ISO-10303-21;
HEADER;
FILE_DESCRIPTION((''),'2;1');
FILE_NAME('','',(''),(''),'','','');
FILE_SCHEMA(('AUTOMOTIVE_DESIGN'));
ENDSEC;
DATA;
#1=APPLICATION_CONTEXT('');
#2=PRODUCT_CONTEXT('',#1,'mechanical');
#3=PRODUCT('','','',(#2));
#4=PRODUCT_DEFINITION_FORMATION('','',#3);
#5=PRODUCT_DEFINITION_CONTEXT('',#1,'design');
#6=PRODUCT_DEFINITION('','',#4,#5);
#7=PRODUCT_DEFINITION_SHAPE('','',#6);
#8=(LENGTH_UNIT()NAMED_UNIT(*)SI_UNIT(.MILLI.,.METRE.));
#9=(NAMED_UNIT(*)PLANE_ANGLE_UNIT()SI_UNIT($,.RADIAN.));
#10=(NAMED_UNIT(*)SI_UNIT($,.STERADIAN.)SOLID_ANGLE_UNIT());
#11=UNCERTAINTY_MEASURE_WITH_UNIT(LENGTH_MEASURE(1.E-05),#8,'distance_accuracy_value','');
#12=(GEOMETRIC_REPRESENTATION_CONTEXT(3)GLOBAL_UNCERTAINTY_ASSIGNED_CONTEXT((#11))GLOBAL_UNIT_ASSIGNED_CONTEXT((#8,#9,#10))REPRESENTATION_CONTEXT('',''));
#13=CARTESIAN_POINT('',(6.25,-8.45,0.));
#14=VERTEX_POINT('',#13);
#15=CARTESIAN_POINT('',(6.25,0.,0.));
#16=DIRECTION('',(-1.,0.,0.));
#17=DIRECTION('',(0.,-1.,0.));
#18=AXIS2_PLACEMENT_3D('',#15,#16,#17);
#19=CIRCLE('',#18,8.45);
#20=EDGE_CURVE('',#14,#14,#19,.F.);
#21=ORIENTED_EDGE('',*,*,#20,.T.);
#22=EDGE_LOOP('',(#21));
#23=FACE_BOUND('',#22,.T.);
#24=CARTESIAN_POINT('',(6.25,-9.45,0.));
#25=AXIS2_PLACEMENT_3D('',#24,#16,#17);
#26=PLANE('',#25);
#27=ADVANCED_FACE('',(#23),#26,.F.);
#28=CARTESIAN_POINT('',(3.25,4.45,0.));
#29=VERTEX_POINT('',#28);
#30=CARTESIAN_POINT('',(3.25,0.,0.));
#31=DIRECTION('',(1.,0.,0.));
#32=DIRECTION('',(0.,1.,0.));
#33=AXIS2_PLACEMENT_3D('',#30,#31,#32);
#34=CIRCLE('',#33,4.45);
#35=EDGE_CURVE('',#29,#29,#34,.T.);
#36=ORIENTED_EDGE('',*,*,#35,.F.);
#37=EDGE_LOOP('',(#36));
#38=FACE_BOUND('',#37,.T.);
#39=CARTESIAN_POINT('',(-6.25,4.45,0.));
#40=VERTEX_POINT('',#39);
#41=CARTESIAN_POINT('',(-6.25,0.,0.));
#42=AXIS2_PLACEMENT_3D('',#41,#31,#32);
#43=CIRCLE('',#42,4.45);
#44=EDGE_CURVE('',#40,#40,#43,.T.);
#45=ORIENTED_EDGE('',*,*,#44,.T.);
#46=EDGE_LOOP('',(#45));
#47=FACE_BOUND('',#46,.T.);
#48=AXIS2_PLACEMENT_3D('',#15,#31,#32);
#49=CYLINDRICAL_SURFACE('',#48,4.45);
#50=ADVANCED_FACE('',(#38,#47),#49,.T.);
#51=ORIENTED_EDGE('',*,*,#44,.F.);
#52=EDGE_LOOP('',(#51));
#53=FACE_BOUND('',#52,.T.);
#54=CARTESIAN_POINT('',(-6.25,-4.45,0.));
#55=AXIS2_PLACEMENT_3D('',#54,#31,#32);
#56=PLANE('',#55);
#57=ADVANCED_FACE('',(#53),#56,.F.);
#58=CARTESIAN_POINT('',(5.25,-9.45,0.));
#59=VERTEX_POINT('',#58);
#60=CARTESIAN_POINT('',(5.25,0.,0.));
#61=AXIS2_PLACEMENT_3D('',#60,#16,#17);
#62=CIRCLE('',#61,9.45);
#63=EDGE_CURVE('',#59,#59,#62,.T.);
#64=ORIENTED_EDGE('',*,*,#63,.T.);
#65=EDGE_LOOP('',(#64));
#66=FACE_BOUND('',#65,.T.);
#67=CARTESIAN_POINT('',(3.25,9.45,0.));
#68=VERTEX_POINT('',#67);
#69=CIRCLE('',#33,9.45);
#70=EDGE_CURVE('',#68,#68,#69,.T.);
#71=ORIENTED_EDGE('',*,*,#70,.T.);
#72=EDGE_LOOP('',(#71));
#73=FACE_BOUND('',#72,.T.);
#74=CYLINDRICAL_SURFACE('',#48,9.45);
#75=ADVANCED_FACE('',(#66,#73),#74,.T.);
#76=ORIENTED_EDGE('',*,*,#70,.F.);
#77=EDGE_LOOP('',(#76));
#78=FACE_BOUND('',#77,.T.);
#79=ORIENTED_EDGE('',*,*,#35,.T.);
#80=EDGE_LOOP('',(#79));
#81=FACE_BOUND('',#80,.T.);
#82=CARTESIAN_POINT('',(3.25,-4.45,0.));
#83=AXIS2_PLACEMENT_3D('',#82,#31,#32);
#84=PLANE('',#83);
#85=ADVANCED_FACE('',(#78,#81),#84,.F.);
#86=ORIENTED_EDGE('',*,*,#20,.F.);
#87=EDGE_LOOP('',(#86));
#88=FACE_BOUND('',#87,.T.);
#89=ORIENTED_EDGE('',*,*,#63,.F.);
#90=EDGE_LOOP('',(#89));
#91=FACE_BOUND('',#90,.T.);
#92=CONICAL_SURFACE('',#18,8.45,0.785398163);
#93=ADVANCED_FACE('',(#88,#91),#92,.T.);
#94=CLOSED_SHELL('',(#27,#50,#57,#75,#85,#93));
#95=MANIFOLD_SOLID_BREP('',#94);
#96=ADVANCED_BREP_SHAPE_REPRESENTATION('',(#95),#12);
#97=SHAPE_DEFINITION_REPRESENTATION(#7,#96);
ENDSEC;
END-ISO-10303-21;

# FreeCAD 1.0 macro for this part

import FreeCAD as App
import Part
import Sketcher
from FreeCAD import Vector


def edges_at(feature, points):
    """Names of the edges that pass closest to the given points."""
    edges = feature.Shape.Edges
    near = lambda p: min(range(len(edges)), key=lambda i: edges[i].distToShape(Part.Vertex(*p))[0])
    return sorted({f"Edge{near(p) + 1}" for p in points})

doc = App.newDocument("Part")
params = doc.addObject("Spreadsheet::Sheet", "Params")
for row, (alias, value) in enumerate([
    ("sketch1_width", "3 mm"),
    ("sketch1_height", "5 mm"),
    ("sketch1_width2", "9.5 mm"),
    ("sketch1_height2", "9.45 mm"),
    ("revolution_angle", "360 deg"),
    ("chamfer_size", "1 mm"),
], start=1):
    params.set(f"A{row}", alias)
    params.set(f"B{row}", "=" + value)
    params.setAlias(f"B{row}", alias)

body = doc.addObject("PartDesign::Body", "Body")

sketch1 = doc.addObject("Sketcher::SketchObject", "Sketch")
body.addObject(sketch1)
sketch1.AttachmentSupport = (doc.XY_Plane, [""])
sketch1.MapMode = "FlatFace"
sketch1.addGeometry([
    Part.LineSegment(Vector(-6.25, -4.45, 0), Vector(3.25, -4.45, 0)),
    Part.LineSegment(Vector(3.25, -4.45, 0), Vector(3.25, -9.45, 0)),
    Part.LineSegment(Vector(3.25, -9.45, 0), Vector(6.25, -9.45, 0)),
    Part.LineSegment(Vector(6.25, -9.45, 0), Vector(6.25, 0, 0)),
    Part.LineSegment(Vector(6.25, 0, 0), Vector(-6.25, 0, 0)),
    Part.LineSegment(Vector(-6.25, 0, 0), Vector(-6.25, -4.45, 0)),
], False)
sketch1.addConstraint([
    Sketcher.Constraint("Coincident", 0, 2, 1, 1),
    Sketcher.Constraint("Coincident", 1, 2, 2, 1),
    Sketcher.Constraint("Coincident", 2, 2, 3, 1),
    Sketcher.Constraint("Coincident", 3, 2, 4, 1),
    Sketcher.Constraint("Coincident", 4, 2, 5, 1),
    Sketcher.Constraint("Coincident", 5, 2, 0, 1),
    Sketcher.Constraint("Horizontal", 0),
    Sketcher.Constraint("Vertical", 1),
    Sketcher.Constraint("Horizontal", 2),
    Sketcher.Constraint("Vertical", 3),
    Sketcher.Constraint("Horizontal", 4),
    Sketcher.Constraint("Vertical", 5),
    Sketcher.Constraint("Symmetric", 3, 2, 4, 2, -1, 1),
    Sketcher.Constraint("DistanceX", 2, 1, 2, 2, 3.0),
    Sketcher.Constraint("DistanceY", 1, 2, 1, 1, 5.0),
    Sketcher.Constraint("DistanceX", 0, 1, 0, 2, 9.5),
    Sketcher.Constraint("DistanceY", 3, 1, 3, 2, 9.45),
])
sketch1.setExpression("Constraints[13]", "Params.sketch1_width")
sketch1.setExpression("Constraints[14]", "Params.sketch1_height")
sketch1.setExpression("Constraints[15]", "Params.sketch1_width2")
sketch1.setExpression("Constraints[16]", "Params.sketch1_height2")
revolution = doc.addObject("PartDesign::Revolution", "Revolution")
body.addObject(revolution)
revolution.Profile = sketch1
revolution.ReferenceAxis = (sketch1, ["H_Axis"])
revolution.setExpression("Angle", "Params.revolution_angle")
doc.recompute()

chamfer = doc.addObject("PartDesign::Chamfer", "Chamfer")
body.addObject(chamfer)
chamfer.Base = (revolution, edges_at(revolution, [(6.25, -9.45, 0)]))
chamfer.setExpression("Size", "Params.chamfer_size")

doc.recompute()
